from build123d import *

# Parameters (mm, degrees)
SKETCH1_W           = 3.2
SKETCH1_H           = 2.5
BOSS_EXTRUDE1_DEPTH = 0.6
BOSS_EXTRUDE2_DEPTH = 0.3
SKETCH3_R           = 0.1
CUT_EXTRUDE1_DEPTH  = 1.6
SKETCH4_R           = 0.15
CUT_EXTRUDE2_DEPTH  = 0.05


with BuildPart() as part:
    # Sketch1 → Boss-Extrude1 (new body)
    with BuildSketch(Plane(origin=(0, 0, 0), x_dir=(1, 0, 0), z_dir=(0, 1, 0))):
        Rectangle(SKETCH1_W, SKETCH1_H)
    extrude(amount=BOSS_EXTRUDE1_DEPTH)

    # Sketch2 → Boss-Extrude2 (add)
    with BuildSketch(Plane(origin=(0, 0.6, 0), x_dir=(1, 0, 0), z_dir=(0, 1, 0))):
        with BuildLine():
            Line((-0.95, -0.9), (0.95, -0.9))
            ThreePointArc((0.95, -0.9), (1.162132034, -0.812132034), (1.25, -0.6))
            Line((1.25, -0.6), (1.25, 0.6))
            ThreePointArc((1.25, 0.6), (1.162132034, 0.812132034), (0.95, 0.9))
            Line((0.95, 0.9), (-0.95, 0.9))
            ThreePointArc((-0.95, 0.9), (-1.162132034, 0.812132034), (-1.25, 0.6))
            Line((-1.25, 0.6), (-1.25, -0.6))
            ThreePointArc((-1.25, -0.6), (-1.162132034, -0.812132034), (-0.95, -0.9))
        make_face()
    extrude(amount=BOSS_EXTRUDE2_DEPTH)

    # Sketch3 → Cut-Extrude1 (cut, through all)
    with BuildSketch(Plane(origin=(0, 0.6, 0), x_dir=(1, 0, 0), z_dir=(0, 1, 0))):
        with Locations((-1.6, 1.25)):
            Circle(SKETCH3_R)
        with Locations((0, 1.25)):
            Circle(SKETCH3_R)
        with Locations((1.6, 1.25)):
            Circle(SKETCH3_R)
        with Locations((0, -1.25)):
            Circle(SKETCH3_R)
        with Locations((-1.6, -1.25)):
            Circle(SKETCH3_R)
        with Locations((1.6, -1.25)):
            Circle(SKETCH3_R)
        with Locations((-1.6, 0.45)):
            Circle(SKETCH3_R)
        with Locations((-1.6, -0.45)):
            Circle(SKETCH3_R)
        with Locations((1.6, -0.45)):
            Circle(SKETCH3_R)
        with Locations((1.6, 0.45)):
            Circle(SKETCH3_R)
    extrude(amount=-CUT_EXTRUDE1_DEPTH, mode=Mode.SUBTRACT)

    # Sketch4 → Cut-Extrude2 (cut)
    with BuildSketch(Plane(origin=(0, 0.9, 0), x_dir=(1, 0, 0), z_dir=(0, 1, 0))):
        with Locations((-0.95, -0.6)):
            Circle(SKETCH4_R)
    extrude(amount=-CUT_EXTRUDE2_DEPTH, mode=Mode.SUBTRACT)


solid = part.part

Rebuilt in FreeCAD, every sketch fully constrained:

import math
import FreeCAD as App
import Part
import Sketcher
from FreeCAD import Vector
Q = App.Units.Quantity

doc = App.newDocument("Part")
body = doc.addObject("PartDesign::Body", "Body")

sketch1 = body.newObject("Sketcher::SketchObject", "Sketch")
sketch1.AttachmentSupport = (doc.getObject("XZ_Plane"), [""])
sketch1.MapMode = "FlatFace"
sketch1.addGeometry([
    Part.LineSegment(Vector(-1.6, -1.2, 0), Vector(-1.6, 1.2, 0)),
    Part.LineSegment(Vector(-1.6, 1.2, 0), Vector(1.6, 1.2, 0)),
    Part.LineSegment(Vector(1.6, 1.2, 0), Vector(1.6, -1.2, 0)),
    Part.LineSegment(Vector(1.6, -1.2, 0), Vector(-1.6, -1.2, 0)),
], False)
sketch1.addConstraint([
    Sketcher.Constraint("Coincident", 0, 2, 1, 1),
    Sketcher.Constraint("Coincident", 1, 2, 2, 1),
    Sketcher.Constraint("Coincident", 2, 2, 3, 1),
    Sketcher.Constraint("Coincident", 3, 2, 0, 1),
    Sketcher.Constraint("Vertical", 0),
    Sketcher.Constraint("Horizontal", 1),
    Sketcher.Constraint("Vertical", 2),
    Sketcher.Constraint("Horizontal", 3),
    Sketcher.Constraint("Symmetric", 0, 2, 2, 2, -1, 1),
    Sketcher.Constraint("DistanceX", 1, 1, 1, 2, Q("3.2 mm")),
    Sketcher.Constraint("DistanceY", 0, 1, 0, 2, Q("2.5 mm")),
])
pad1 = body.newObject("PartDesign::Pad", "Pad")
pad1.Profile = sketch1
pad1.Length = 0.6
pad1.Reversed = True

sketch2 = body.newObject("Sketcher::SketchObject", "Sketch001")
sketch2.AttachmentSupport = (doc.getObject("XZ_Plane"), [""])
sketch2.MapMode = "FlatFace"
sketch2.AttachmentOffset = App.Placement(Vector(0, 0, -0.6), App.Rotation())
sketch2.addGeometry([
    Part.LineSegment(Vector(-0.95, 0.9, 0), Vector(0.95, 0.9, 0)),
    Part.ArcOfCircle(Part.Circle(Vector(0.95, 0.6, 0), Vector(0, 0, 1), 0.3), math.radians(0), math.radians(90)),
    Part.LineSegment(Vector(1.25, 0.6, 0), Vector(1.25, -0.6, 0)),
    Part.ArcOfCircle(Part.Circle(Vector(0.95, -0.6, 0), Vector(0, 0, 1), 0.3), math.radians(-90), math.radians(0)),
    Part.LineSegment(Vector(0.95, -0.9, 0), Vector(-0.95, -0.9, 0)),
    Part.ArcOfCircle(Part.Circle(Vector(-0.95, -0.6, 0), Vector(0, 0, 1), 0.3), math.radians(-180), math.radians(-90)),
    Part.LineSegment(Vector(-1.25, -0.6, 0), Vector(-1.25, 0.6, 0)),
    Part.ArcOfCircle(Part.Circle(Vector(-0.95, 0.6, 0), Vector(0, 0, 1), 0.3), math.radians(90), math.radians(180)),
], False)
sketch2.addConstraint([
    Sketcher.Constraint("Tangent", 0, 2, 1, 2),
    Sketcher.Constraint("Tangent", 1, 1, 2, 1),
    Sketcher.Constraint("Tangent", 2, 2, 3, 2),
    Sketcher.Constraint("Tangent", 3, 1, 4, 1),
    Sketcher.Constraint("Tangent", 4, 2, 5, 2),
    Sketcher.Constraint("Tangent", 5, 1, 6, 1),
    Sketcher.Constraint("Tangent", 6, 2, 7, 2),
    Sketcher.Constraint("Tangent", 7, 1, 0, 1),
    Sketcher.Constraint("Horizontal", 0),
    Sketcher.Constraint("Vertical", 2),
    Sketcher.Constraint("Horizontal", 4),
    Sketcher.Constraint("Vertical", 6),
    Sketcher.Constraint("Equal", 1, 3),
    Sketcher.Constraint("Equal", 3, 5),
    Sketcher.Constraint("Equal", 5, 7),
    Sketcher.Constraint("Symmetric", 1, 3, 5, 3, -1, 1),
    Sketcher.Constraint("Radius", 1, Q("0.3 mm")),
    Sketcher.Constraint("DistanceX", 0, 1, 0, 2, Q("1.9 mm")),
    Sketcher.Constraint("DistanceY", 2, 2, 2, 1, Q("1.2 mm")),
])
pad2 = body.newObject("PartDesign::Pad", "Pad001")
pad2.Profile = sketch2
pad2.Length = 0.3
pad2.Reversed = True

sketch3 = body.newObject("Sketcher::SketchObject", "Sketch002")
sketch3.AttachmentSupport = (doc.getObject("XZ_Plane"), [""])
sketch3.MapMode = "FlatFace"
sketch3.AttachmentOffset = App.Placement(Vector(0, 0, -0.6), App.Rotation())
sketch3.addGeometry([
    Part.Circle(Vector(-1.6, -1.25, 0), Vector(0, 0, 1), 0.1),
    Part.Circle(Vector(0, -1.25, 0), Vector(0, 0, 1), 0.1),
    Part.Circle(Vector(1.6, -1.25, 0), Vector(0, 0, 1), 0.1),
    Part.Circle(Vector(0, 1.25, 0), Vector(0, 0, 1), 0.1),
    Part.Circle(Vector(-1.6, 1.25, 0), Vector(0, 0, 1), 0.1),
    Part.Circle(Vector(1.6, 1.25, 0), Vector(0, 0, 1), 0.1),
    Part.Circle(Vector(-1.6, -0.45, 0), Vector(0, 0, 1), 0.1),
    Part.Circle(Vector(-1.6, 0.45, 0), Vector(0, 0, 1), 0.1),
    Part.Circle(Vector(1.6, 0.45, 0), Vector(0, 0, 1), 0.1),
    Part.Circle(Vector(1.6, -0.45, 0), Vector(0, 0, 1), 0.1),
], False)
sketch3.addConstraint([
    Sketcher.Constraint("Equal", 0, 1),
    Sketcher.Constraint("Equal", 1, 2),
    Sketcher.Constraint("Equal", 2, 3),
    Sketcher.Constraint("Equal", 3, 4),
    Sketcher.Constraint("Equal", 4, 5),
    Sketcher.Constraint("Equal", 5, 6),
    Sketcher.Constraint("Equal", 6, 7),
    Sketcher.Constraint("Equal", 7, 8),
    Sketcher.Constraint("Equal", 8, 9),
    Sketcher.Constraint("Symmetric", 1, 3, 3, 3, -1, 1),
    Sketcher.Constraint("Symmetric", 2, 3, 4, 3, -1, 1),
    Sketcher.Constraint("Symmetric", 0, 3, 5, 3, -1, 1),
    Sketcher.Constraint("Symmetric", 6, 3, 8, 3, -1, 1),
    Sketcher.Constraint("Symmetric", 7, 3, 9, 3, -1, 1),
    Sketcher.Constraint("Symmetric", 0, 3, 2, 3, -2),
    Sketcher.Constraint("Symmetric", 7, 3, 8, 3, -2),
    Sketcher.Constraint("PointOnObject", 1, 3, -2),
    Sketcher.Constraint("Horizontal", 0, 3, 1, 3),
    Sketcher.Constraint("Vertical", 4, 3, 6, 3),
    Sketcher.Constraint("Diameter", 0, Q("0.2 mm")),
    Sketcher.Constraint("DistanceX", 0, 3, -1, 1, Q("1.6 mm")),
    Sketcher.Constraint("DistanceY", 1, 3, 3, 3, Q("2.5 mm")),
    Sketcher.Constraint("DistanceY", 0, 3, 6, 3, Q("0.8 mm")),
])
pocket1 = body.newObject("PartDesign::Pocket", "Pocket")
pocket1.Profile = sketch3
pocket1.Type = "ThroughAll"
pocket1.Reversed = True

sketch4 = body.newObject("Sketcher::SketchObject", "Sketch003")
sketch4.AttachmentSupport = (doc.getObject("XZ_Plane"), [""])
sketch4.MapMode = "FlatFace"
sketch4.AttachmentOffset = App.Placement(Vector(0, 0, -0.9), App.Rotation())
sketch4.addGeometry(Part.Circle(Vector(-0.95, 0.6, 0), Vector(0, 0, 1), 0.15), False)
sketch4.addConstraint([
    Sketcher.Constraint("Diameter", 0, Q("0.3 mm")),
    Sketcher.Constraint("DistanceY", -1, 1, 0, 3, Q("0.6 mm")),
    Sketcher.Constraint("DistanceX", 0, 3, -1, 1, Q("0.95 mm")),
])
pocket2 = body.newObject("PartDesign::Pocket", "Pocket001")
pocket2.Profile = sketch4
pocket2.Length = 0.05
pocket2.Reversed = True

doc.recompute()
